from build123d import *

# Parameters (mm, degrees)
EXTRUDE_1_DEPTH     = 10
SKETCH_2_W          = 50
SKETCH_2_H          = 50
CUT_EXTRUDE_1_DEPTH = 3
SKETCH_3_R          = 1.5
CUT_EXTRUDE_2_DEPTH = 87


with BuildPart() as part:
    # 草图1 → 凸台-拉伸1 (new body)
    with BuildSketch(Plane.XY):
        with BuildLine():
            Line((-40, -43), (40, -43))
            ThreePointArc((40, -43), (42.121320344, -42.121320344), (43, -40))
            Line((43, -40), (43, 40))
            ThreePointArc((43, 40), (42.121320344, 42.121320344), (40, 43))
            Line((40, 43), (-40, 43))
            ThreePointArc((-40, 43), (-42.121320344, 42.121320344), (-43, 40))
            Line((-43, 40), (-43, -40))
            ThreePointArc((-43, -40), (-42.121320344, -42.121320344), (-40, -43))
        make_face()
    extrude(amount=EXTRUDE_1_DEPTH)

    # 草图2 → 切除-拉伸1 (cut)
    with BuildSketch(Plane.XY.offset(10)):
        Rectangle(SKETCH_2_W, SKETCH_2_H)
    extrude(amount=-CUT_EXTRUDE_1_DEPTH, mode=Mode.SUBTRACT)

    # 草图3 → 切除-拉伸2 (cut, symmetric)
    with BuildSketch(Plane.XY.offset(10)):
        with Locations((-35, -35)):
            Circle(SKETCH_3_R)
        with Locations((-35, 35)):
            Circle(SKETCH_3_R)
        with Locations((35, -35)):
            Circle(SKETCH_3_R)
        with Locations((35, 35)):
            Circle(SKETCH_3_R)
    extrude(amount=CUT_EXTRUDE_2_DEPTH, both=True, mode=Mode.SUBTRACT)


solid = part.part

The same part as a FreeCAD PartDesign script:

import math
import FreeCAD as App
import Part
import Sketcher
Q = App.Units.Quantity

doc = App.newDocument("Part")
body = doc.addObject("PartDesign::Body", "Body")

sketch1 = body.newObject("Sketcher::SketchObject", "Sketch")
sketch1.AttachmentSupport = (doc.getObject("XY_Plane"), [""])
sketch1.MapMode = "FlatFace"
sketch1.addGeometry(Part.LineSegment(App.Vector(-40, -43, 0), App.Vector(40, -43, 0)), False)
sketch1.addGeometry(Part.ArcOfCircle(Part.Circle(App.Vector(40, -40, 0), App.Vector(0, 0, 1), 3), math.radians(-90), math.radians(0)), False)
sketch1.addGeometry(Part.LineSegment(App.Vector(43, -40, 0), App.Vector(43, 40, 0)), False)
sketch1.addGeometry(Part.ArcOfCircle(Part.Circle(App.Vector(40, 40, 0), App.Vector(0, 0, 1), 3), math.radians(0), math.radians(90)), False)
sketch1.addGeometry(Part.LineSegment(App.Vector(40, 43, 0), App.Vector(-40, 43, 0)), False)
sketch1.addGeometry(Part.ArcOfCircle(Part.Circle(App.Vector(-40, 40, 0), App.Vector(0, 0, 1), 3), math.radians(90), math.radians(180)), False)
sketch1.addGeometry(Part.LineSegment(App.Vector(-43, 40, 0), App.Vector(-43, -40, 0)), False)
sketch1.addGeometry(Part.ArcOfCircle(Part.Circle(App.Vector(-40, -40, 0), App.Vector(0, 0, 1), 3), math.radians(180), math.radians(270)), False)
sketch1.addConstraint(Sketcher.Constraint("Tangent", 0, 2, 1, 1))
sketch1.addConstraint(Sketcher.Constraint("Tangent", 1, 2, 2, 1))
sketch1.addConstraint(Sketcher.Constraint("Tangent", 2, 2, 3, 1))
sketch1.addConstraint(Sketcher.Constraint("Tangent", 3, 2, 4, 1))
sketch1.addConstraint(Sketcher.Constraint("Tangent", 4, 2, 5, 1))
sketch1.addConstraint(Sketcher.Constraint("Tangent", 5, 2, 6, 1))
sketch1.addConstraint(Sketcher.Constraint("Tangent", 6, 2, 7, 1))
sketch1.addConstraint(Sketcher.Constraint("Tangent", 7, 2, 0, 1))
sketch1.addConstraint(Sketcher.Constraint("Horizontal", 0))
sketch1.addConstraint(Sketcher.Constraint("Vertical", 2))
sketch1.addConstraint(Sketcher.Constraint("Horizontal", 4))
sketch1.addConstraint(Sketcher.Constraint("Vertical", 6))
sketch1.addConstraint(Sketcher.Constraint("Equal", 1, 3))
sketch1.addConstraint(Sketcher.Constraint("Equal", 3, 5))
sketch1.addConstraint(Sketcher.Constraint("Equal", 5, 7))
sketch1.addConstraint(Sketcher.Constraint("Symmetric", 1, 3, 5, 3, -1, 1))
sketch1.addConstraint(Sketcher.Constraint("Equal", 4, 2))
sketch1.addConstraint(Sketcher.Constraint("Radius", 1, Q("3 mm")))
sketch1.addConstraint(Sketcher.Constraint("DistanceX", 0, 1, 0, 2, Q("80 mm")))
pad1 = body.newObject("PartDesign::Pad", "Pad")
pad1.Profile = sketch1
pad1.Length = 10

sketch2 = body.newObject("Sketcher::SketchObject", "Sketch001")
sketch2.AttachmentSupport = (doc.getObject("XY_Plane"), [""])
sketch2.MapMode = "FlatFace"
sketch2.AttachmentOffset = App.Placement(App.Vector(0, 0, 10), App.Rotation())
sketch2.addGeometry(Part.LineSegment(App.Vector(-25, 25, 0), App.Vector(-25, -25, 0)), False)
sketch2.addGeometry(Part.LineSegment(App.Vector(-25, -25, 0), App.Vector(25, -25, 0)), False)
sketch2.addGeometry(Part.LineSegment(App.Vector(25, -25, 0), App.Vector(25, 25, 0)), False)
sketch2.addGeometry(Part.LineSegment(App.Vector(25, 25, 0), App.Vector(-25, 25, 0)), False)
sketch2.addConstraint(Sketcher.Constraint("Coincident", 0, 2, 1, 1))
sketch2.addConstraint(Sketcher.Constraint("Coincident", 1, 2, 2, 1))
sketch2.addConstraint(Sketcher.Constraint("Coincident", 2, 2, 3, 1))
sketch2.addConstraint(Sketcher.Constraint("Coincident", 3, 2, 0, 1))
sketch2.addConstraint(Sketcher.Constraint("Vertical", 0))
sketch2.addConstraint(Sketcher.Constraint("Horizontal", 1))
sketch2.addConstraint(Sketcher.Constraint("Vertical", 2))
sketch2.addConstraint(Sketcher.Constraint("Horizontal", 3))
sketch2.addConstraint(Sketcher.Constraint("Symmetric", 0, 2, 2, 2, -1, 1))
sketch2.addConstraint(Sketcher.Constraint("Equal", 3, 0))
sketch2.addConstraint(Sketcher.Constraint("DistanceX", 1, 1, 1, 2, Q("50 mm")))
pocket1 = body.newObject("PartDesign::Pocket", "Pocket")
pocket1.Profile = sketch2
pocket1.Length = 3

sketch3 = body.newObject("Sketcher::SketchObject", "Sketch002")
sketch3.AttachmentSupport = (doc.getObject("XY_Plane"), [""])
sketch3.MapMode = "FlatFace"
sketch3.AttachmentOffset = App.Placement(App.Vector(0, 0, 10), App.Rotation())
sketch3.addGeometry(Part.Circle(App.Vector(-35, -35, 0), App.Vector(0, 0, 1), 1.5), False)
sketch3.addGeometry(Part.Circle(App.Vector(-35, 35, 0), App.Vector(0, 0, 1), 1.5), False)
sketch3.addGeometry(Part.Circle(App.Vector(35, -35, 0), App.Vector(0, 0, 1), 1.5), False)
sketch3.addGeometry(Part.Circle(App.Vector(35, 35, 0), App.Vector(0, 0, 1), 1.5), False)
sketch3.addConstraint(Sketcher.Constraint("Equal", 0, 1))
sketch3.addConstraint(Sketcher.Constraint("Equal", 1, 2))
sketch3.addConstraint(Sketcher.Constraint("Equal", 2, 3))
sketch3.addConstraint(Sketcher.Constraint("Symmetric", 1, 3, 2, 3, -1, 1))
sketch3.addConstraint(Sketcher.Constraint("Symmetric", 0, 3, 3, 3, -1, 1))
sketch3.addConstraint(Sketcher.Constraint("Symmetric", 0, 3, 2, 3, -2))
sketch3.addConstraint(Sketcher.Constraint("Diameter", 0, Q("3 mm")))
sketch3.addConstraint(Sketcher.Constraint("DistanceX", 0, 3, -1, 1, Q("35 mm")))
sketch3.addConstraint(Sketcher.Constraint("DistanceY", 0, 3, -1, 1, Q("35 mm")))
pocket2 = body.newObject("PartDesign::Pocket", "Pocket001")
pocket2.Profile = sketch3
pocket2.Length = 174
pocket2.Midplane = True

doc.recompute()
